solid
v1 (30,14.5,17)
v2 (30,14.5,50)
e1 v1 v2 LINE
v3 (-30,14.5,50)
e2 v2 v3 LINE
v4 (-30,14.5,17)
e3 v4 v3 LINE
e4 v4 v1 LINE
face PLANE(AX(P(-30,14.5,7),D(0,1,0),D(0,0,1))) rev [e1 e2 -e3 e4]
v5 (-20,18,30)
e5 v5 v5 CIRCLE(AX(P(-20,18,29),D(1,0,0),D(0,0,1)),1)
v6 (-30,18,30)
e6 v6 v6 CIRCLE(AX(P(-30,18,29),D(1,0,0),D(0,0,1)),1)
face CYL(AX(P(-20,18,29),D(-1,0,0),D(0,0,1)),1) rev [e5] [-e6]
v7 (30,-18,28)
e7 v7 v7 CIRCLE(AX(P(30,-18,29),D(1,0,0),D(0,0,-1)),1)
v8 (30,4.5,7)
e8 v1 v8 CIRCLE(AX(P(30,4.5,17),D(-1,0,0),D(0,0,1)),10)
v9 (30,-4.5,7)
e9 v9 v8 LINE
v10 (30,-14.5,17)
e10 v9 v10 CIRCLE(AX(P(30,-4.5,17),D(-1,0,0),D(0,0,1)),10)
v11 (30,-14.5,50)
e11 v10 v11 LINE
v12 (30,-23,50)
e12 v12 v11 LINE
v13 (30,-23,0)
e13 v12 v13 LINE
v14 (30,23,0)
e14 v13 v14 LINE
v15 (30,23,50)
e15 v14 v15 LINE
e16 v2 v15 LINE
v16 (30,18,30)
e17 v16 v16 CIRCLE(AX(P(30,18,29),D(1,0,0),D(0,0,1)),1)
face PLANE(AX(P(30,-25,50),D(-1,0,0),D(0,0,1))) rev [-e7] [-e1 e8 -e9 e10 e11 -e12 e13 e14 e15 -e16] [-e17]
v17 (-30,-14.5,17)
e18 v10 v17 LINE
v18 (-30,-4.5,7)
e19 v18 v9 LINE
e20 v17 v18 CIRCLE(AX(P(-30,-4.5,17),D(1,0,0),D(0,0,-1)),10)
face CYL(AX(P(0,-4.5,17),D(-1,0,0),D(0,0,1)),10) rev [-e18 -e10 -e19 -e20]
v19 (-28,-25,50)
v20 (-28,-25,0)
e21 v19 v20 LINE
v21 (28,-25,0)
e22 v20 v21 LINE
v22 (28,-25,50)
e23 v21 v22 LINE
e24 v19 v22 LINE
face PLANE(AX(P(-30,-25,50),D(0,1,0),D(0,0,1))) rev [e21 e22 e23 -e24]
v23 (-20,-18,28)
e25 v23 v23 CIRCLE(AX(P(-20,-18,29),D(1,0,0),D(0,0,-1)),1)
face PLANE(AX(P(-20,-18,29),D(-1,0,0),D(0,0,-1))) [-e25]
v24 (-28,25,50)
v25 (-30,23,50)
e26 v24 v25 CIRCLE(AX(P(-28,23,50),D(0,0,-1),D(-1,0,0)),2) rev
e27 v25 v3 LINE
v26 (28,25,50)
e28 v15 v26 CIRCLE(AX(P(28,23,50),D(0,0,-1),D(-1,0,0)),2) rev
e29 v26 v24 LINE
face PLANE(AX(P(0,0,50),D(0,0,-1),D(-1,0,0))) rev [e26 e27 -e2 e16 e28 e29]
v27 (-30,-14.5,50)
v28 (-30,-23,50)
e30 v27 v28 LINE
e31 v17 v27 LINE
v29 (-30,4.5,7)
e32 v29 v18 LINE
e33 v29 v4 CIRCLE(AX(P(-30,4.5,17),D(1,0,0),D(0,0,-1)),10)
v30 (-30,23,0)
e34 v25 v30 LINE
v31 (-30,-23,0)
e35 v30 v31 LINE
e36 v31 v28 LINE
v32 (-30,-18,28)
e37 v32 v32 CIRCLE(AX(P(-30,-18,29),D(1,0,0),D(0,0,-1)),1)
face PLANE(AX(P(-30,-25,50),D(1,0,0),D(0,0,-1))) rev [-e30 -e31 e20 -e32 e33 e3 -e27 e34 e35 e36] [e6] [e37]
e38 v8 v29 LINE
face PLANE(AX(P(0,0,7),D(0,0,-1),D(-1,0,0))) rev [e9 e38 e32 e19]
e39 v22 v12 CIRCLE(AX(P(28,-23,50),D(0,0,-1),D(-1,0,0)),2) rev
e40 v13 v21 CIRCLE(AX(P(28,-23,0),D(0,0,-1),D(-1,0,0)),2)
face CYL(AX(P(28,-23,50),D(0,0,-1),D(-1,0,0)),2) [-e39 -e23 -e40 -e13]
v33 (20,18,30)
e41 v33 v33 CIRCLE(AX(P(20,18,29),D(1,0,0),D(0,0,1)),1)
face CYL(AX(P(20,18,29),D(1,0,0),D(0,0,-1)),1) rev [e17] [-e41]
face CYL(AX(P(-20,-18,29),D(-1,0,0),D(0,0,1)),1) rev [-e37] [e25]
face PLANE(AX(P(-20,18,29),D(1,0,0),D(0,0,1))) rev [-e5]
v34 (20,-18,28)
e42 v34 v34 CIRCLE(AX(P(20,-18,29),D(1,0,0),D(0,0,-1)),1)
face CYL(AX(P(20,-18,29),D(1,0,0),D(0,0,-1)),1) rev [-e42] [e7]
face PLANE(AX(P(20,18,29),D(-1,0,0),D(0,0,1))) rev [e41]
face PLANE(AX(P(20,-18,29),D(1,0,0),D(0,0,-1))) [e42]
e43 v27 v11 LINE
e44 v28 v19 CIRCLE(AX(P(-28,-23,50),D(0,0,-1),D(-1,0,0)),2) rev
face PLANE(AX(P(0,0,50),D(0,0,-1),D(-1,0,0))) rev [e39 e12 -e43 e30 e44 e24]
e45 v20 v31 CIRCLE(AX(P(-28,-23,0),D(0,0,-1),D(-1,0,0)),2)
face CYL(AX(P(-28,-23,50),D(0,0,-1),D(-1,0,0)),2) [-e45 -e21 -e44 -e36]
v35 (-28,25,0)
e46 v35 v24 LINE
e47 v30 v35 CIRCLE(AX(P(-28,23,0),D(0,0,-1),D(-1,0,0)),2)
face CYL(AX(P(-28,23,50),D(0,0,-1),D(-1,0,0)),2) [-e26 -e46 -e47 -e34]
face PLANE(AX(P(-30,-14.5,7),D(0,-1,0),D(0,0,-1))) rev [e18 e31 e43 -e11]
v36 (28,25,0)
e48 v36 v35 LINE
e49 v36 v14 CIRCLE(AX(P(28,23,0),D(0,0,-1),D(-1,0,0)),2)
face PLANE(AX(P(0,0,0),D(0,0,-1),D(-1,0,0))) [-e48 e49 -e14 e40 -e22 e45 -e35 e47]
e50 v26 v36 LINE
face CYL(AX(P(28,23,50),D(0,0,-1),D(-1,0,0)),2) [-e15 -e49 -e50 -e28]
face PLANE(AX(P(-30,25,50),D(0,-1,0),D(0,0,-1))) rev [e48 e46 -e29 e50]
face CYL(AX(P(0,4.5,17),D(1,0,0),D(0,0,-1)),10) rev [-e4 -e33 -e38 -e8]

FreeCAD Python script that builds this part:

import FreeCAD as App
import Part
import Sketcher
from FreeCAD import Vector


def edges_at(feature, points):
    """Names of the edges that pass closest to the given points."""
    edges = feature.Shape.Edges
    near = lambda p: min(range(len(edges)), key=lambda i: edges[i].distToShape(Part.Vertex(*p))[0])
    return sorted({f"Edge{near(p) + 1}" for p in points})


def add_polygon(sketch, points):
    """Adds a closed chain of lines whose ends are joined by coincident constraints."""
    first, n = sketch.GeometryCount, len(points)
    for a, b in zip(points, points[1:] + points[:1]):
        sketch.addGeometry(Part.LineSegment(App.Vector(*a, 0), App.Vector(*b, 0)), False)
    for i in range(n):
        sketch.addConstraint(Sketcher.Constraint("Coincident", first + i, 2, first + (i + 1) % n, 1))

doc = App.newDocument("Part")
params = doc.addObject("Spreadsheet::Sheet", "Params")
for row, (alias, value) in enumerate([
    ("sketch1_width", "60 mm"),
    ("sketch1_height", "50 mm"),
    ("pad1_length", "50 mm"),
    ("sketch2_width", "60 mm"),
    ("sketch2_height", "29 mm"),
    ("pocket1_length", "43 mm"),
    ("fillet_radius", "10 mm"),
    ("fillet2_radius", "2 mm"),
    ("sketch3_diameter", "2 mm"),
    ("pocket2_length", "10 mm"),
], start=1):
    params.set(f"A{row}", alias)
    params.set(f"B{row}", "=" + value)
    params.setAlias(f"B{row}", alias)

body = doc.addObject("PartDesign::Body", "Body")

# Sketch on XY plane
sketch1 = doc.addObject("Sketcher::SketchObject", "Sketch")
body.addObject(sketch1)
sketch1.AttachmentSupport = (doc.XY_Plane, [""])
sketch1.MapMode = "FlatFace"
add_polygon(sketch1, [(-30, 25), (-30, -25), (30, -25), (30, 25)])  # lines 0-3
sketch1.addConstraint(Sketcher.Constraint("Vertical", 0))
sketch1.addConstraint(Sketcher.Constraint("Horizontal", 1))
sketch1.addConstraint(Sketcher.Constraint("Vertical", 2))
sketch1.addConstraint(Sketcher.Constraint("Horizontal", 3))
sketch1.addConstraint(Sketcher.Constraint("Symmetric", 0, 2, 2, 2, -1, 1))
sketch1.addConstraint(Sketcher.Constraint("DistanceX", 1, 1, 1, 2, 60.0))
sketch1.addConstraint(Sketcher.Constraint("DistanceY", 0, 2, 0, 1, 50.0))
sketch1.setExpression("Constraints[9]", "Params.sketch1_width")
sketch1.setExpression("Constraints[10]", "Params.sketch1_height")
pad1 = doc.addObject("PartDesign::Pad", "Pad")
body.addObject(pad1)
pad1.Profile = sketch1
pad1.setExpression("Length", "Params.pad1_length")

# Sketch on XY plane
sketch2 = doc.addObject("Sketcher::SketchObject", "Sketch001")
body.addObject(sketch2)
sketch2.AttachmentSupport = (doc.XY_Plane, [""])
sketch2.MapMode = "FlatFace"
sketch2.AttachmentOffset = App.Placement(Vector(0, 0, 50), App.Rotation())
add_polygon(sketch2, [(-30, 14), (-30, -14), (30, -14), (30, 14)])  # lines 0-3
sketch2.addConstraint(Sketcher.Constraint("Vertical", 0))
sketch2.addConstraint(Sketcher.Constraint("Horizontal", 1))
sketch2.addConstraint(Sketcher.Constraint("Vertical", 2))
sketch2.addConstraint(Sketcher.Constraint("Horizontal", 3))
sketch2.addConstraint(Sketcher.Constraint("Symmetric", 0, 2, 2, 2, -1, 1))
sketch2.addConstraint(Sketcher.Constraint("DistanceX", 1, 1, 1, 2, 60.0))
sketch2.addConstraint(Sketcher.Constraint("DistanceY", 0, 2, 0, 1, 29.0))
sketch2.setExpression("Constraints[9]", "Params.sketch2_width")
sketch2.setExpression("Constraints[10]", "Params.sketch2_height")
pocket1 = doc.addObject("PartDesign::Pocket", "Pocket")
body.addObject(pocket1)
pocket1.Profile = sketch2
pocket1.setExpression("Length", "Params.pocket1_length")
doc.recompute()

fillet = doc.addObject("PartDesign::Fillet", "Fillet")
body.addObject(fillet)
fillet.Base = (pocket1, edges_at(pocket1, [(0, -14.5, 7), (0, 14.5, 7)]))
fillet.setExpression("Radius", "Params.fillet_radius")
doc.recompute()

fillet2 = doc.addObject("PartDesign::Fillet", "Fillet001")
body.addObject(fillet2)
fillet2.Base = (fillet, edges_at(fillet, [
    (30, -25, 25),
    (-30, -25, 25),
    (-30, 25, 25),
    (30, 25, 25),
]))
fillet2.setExpression("Radius", "Params.fillet2_radius")

# Sketch on YZ plane
sketch3 = doc.addObject("Sketcher::SketchObject", "Sketch002")
body.addObject(sketch3)
sketch3.AttachmentSupport = (doc.YZ_Plane, [""])
sketch3.MapMode = "FlatFace"
sketch3.AttachmentOffset = App.Placement(Vector(0, 0, 30), App.Rotation())
sketch3.addGeometry(Part.Circle(Vector(-18, 29, 0), Vector(0, 0, 1), 1), False)
sketch3.addGeometry(Part.Circle(Vector(18, 29, 0), Vector(0, 0, 1), 1), False)
sketch3.addConstraint(Sketcher.Constraint("Equal", 0, 1))
sketch3.addConstraint(Sketcher.Constraint("Symmetric", 0, 3, 1, 3, -2))
sketch3.addConstraint(Sketcher.Constraint("Diameter", 0, 2.0))
sketch3.addConstraint(Sketcher.Constraint("DistanceX", 0, 3, -1, 1, 18.0))
sketch3.addConstraint(Sketcher.Constraint("DistanceY", -1, 1, 0, 3, 29.0))
sketch3.setExpression("Constraints[2]", "Params.sketch3_diameter")
pocket2 = doc.addObject("PartDesign::Pocket", "Pocket001")
body.addObject(pocket2)
pocket2.Profile = sketch3
pocket2.setExpression("Length", "Params.pocket2_length")
doc.recompute()

mirrored = doc.addObject("PartDesign::Mirrored", "Mirrored")
body.addObject(mirrored)
mirrored.Originals = [pocket2]
mirrored.MirrorPlane = (doc.YZ_Plane, [""])
body.Tip = mirrored

doc.recompute()
